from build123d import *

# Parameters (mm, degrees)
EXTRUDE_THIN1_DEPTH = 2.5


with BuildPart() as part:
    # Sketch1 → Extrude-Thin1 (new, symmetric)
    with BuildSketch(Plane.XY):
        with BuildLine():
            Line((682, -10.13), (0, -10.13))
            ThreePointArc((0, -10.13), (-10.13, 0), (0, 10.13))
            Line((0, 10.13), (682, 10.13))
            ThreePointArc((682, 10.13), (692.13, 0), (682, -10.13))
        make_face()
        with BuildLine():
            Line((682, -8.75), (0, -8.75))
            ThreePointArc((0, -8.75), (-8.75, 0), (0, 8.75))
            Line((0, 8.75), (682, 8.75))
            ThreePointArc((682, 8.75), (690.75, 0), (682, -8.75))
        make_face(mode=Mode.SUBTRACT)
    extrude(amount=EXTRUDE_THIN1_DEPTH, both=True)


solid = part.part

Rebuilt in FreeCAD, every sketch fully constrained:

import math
import FreeCAD as App
import Part
import Sketcher

V = App.Vector

doc = App.newDocument("Part")
body = doc.addObject("PartDesign::Body", "Body")

# Sketch on XY plane
sketch1 = doc.addObject("Sketcher::SketchObject", "Sketch")
body.addObject(sketch1)
sketch1.AttachmentSupport = (doc.XY_Plane, [""])
sketch1.MapMode = "FlatFace"
sketch1.addGeometry([
    Part.LineSegment(V(0, -10, 0), V(682, -10, 0)),  # 0
    Part.ArcOfCircle(Part.Circle(V(682, 0, 0), V(0, 0, 1), 10), math.radians(-90), math.radians(90)),  # 1
    Part.LineSegment(V(682, 10, 0), V(0, 10, 0)),  # 2
    Part.ArcOfCircle(Part.Circle(V(0, 0, 0), V(0, 0, 1), 10), math.radians(90), math.radians(270)),  # 3
    Part.LineSegment(V(682, -9, 0), V(0, -9, 0)),  # 4
    Part.ArcOfCircle(Part.Circle(V(0, 0, 0), V(0, 0, 1), 9), math.radians(90), math.radians(270)),  # 5
    Part.LineSegment(V(0, 9, 0), V(682, 9, 0)),  # 6
    Part.ArcOfCircle(Part.Circle(V(682, 0, 0), V(0, 0, 1), 9), math.radians(-90), math.radians(90)),  # 7
], False)
sketch1.addConstraint([
    Sketcher.Constraint("Tangent", 0, 2, 1, 1),
    Sketcher.Constraint("Tangent", 1, 2, 2, 1),
    Sketcher.Constraint("Tangent", 2, 2, 3, 1),
    Sketcher.Constraint("Tangent", 3, 2, 0, 1),
    Sketcher.Constraint("Tangent", 4, 2, 5, 2),
    Sketcher.Constraint("Tangent", 5, 1, 6, 1),
    Sketcher.Constraint("Tangent", 6, 2, 7, 2),
    Sketcher.Constraint("Tangent", 7, 1, 4, 1),
    Sketcher.Constraint("Horizontal", 0),
    Sketcher.Constraint("Horizontal", 2),
    Sketcher.Constraint("Horizontal", 4),
    Sketcher.Constraint("Horizontal", 6),
    Sketcher.Constraint("Coincident", 3, 3, -1, 1),
    Sketcher.Constraint("Coincident", 5, 3, -1, 1),
    Sketcher.Constraint("Vertical", 7, 3, 0, 2),
    Sketcher.Constraint("DistanceX", 0, 1, 0, 2, 682.0),
    Sketcher.Constraint("Radius", 1, 10.13),
    Sketcher.Constraint("Radius", 5, 8.75),
])
pad1 = doc.addObject("PartDesign::Pad", "Pad")
body.addObject(pad1)
pad1.Profile = sketch1
pad1.Length = 5
pad1.Midplane = True

doc.recompute()
